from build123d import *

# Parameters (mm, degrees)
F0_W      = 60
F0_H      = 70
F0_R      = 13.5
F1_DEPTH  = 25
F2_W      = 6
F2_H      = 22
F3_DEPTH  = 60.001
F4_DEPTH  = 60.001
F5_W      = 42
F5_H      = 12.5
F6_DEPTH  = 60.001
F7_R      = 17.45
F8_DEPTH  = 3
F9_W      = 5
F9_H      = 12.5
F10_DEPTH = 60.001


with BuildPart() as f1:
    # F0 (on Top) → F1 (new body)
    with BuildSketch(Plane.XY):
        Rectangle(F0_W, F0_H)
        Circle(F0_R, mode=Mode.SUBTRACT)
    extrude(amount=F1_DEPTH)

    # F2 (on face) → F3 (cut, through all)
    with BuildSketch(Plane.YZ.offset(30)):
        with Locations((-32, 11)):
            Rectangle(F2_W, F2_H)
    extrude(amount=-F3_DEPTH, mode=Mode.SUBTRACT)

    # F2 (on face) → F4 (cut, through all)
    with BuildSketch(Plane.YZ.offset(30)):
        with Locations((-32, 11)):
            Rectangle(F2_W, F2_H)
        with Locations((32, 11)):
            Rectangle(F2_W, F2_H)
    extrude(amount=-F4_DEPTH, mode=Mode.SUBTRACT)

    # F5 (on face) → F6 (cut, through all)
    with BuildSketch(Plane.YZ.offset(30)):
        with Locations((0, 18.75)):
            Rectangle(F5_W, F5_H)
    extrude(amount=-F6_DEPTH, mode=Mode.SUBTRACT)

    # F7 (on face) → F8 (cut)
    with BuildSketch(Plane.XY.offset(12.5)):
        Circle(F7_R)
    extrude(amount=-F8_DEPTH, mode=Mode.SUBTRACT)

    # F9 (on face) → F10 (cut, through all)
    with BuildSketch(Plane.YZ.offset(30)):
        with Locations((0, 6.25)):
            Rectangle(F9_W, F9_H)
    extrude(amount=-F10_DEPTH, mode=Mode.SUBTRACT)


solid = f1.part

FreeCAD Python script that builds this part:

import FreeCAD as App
import Part
import Sketcher

V = App.Vector

doc = App.newDocument("Part")
body = doc.addObject("PartDesign::Body", "Body")
body.AllowCompound = True

# Sketch on XY plane
sketch1 = body.newObject("Sketcher::SketchObject", "Sketch")
sketch1.AttachmentSupport = (doc.getObject("XY_Plane"), [""])
sketch1.MapMode = "FlatFace"
sketch1.addGeometry([
    Part.LineSegment(V(-30, 35, 0), V(-30, -35, 0)),  # 0
    Part.LineSegment(V(-30, -35, 0), V(30, -35, 0)),  # 1
    Part.LineSegment(V(30, -35, 0), V(30, 35, 0)),  # 2
    Part.LineSegment(V(30, 35, 0), V(-30, 35, 0)),  # 3
    Part.Circle(V(0, 0, 0), V(0, 0, 1), 13.5),  # 4
], False)
sketch1.addConstraint([
    Sketcher.Constraint("Coincident", 0, 2, 1, 1),
    Sketcher.Constraint("Coincident", 1, 2, 2, 1),
    Sketcher.Constraint("Coincident", 2, 2, 3, 1),
    Sketcher.Constraint("Coincident", 3, 2, 0, 1),
    Sketcher.Constraint("Vertical", 0),
    Sketcher.Constraint("Horizontal", 1),
    Sketcher.Constraint("Vertical", 2),
    Sketcher.Constraint("Horizontal", 3),
    Sketcher.Constraint("Coincident", 4, 3, -1, 1),
    Sketcher.Constraint("Symmetric", 0, 2, 2, 2, -1, 1),
    Sketcher.Constraint("Diameter", 4, 27.0),
    Sketcher.Constraint("DistanceX", 1, 1, 1, 2, 60.0),
    Sketcher.Constraint("DistanceY", 0, 2, 0, 1, 70.0),
])
pad1 = body.newObject("PartDesign::Pad", "Pad")
pad1.Profile = sketch1
pad1.Length = 25

# Sketch on YZ plane
sketch2 = body.newObject("Sketcher::SketchObject", "Sketch001")
sketch2.AttachmentSupport = (doc.getObject("YZ_Plane"), [""])
sketch2.MapMode = "FlatFace"
sketch2.AttachmentOffset = App.Placement(V(0, 0, 30), App.Rotation())
sketch2.addGeometry([
    Part.LineSegment(V(-35, 22, 0), V(-35, 0, 0)),
    Part.LineSegment(V(-35, 0, 0), V(-29, 0, 0)),
    Part.LineSegment(V(-29, 0, 0), V(-29, 22, 0)),
    Part.LineSegment(V(-29, 22, 0), V(-35, 22, 0)),
], False)
sketch2.addConstraint([
    Sketcher.Constraint("Coincident", 0, 2, 1, 1),
    Sketcher.Constraint("Coincident", 1, 2, 2, 1),
    Sketcher.Constraint("Coincident", 2, 2, 3, 1),
    Sketcher.Constraint("Coincident", 3, 2, 0, 1),
    Sketcher.Constraint("Vertical", 0),
    Sketcher.Constraint("Horizontal", 1),
    Sketcher.Constraint("Vertical", 2),
    Sketcher.Constraint("Horizontal", 3),
    Sketcher.Constraint("PointOnObject", 0, 2, -1),
    Sketcher.Constraint("DistanceX", 1, 1, 1, 2, 6.0),
    Sketcher.Constraint("DistanceY", 0, 2, 0, 1, 22.0),
    Sketcher.Constraint("DistanceX", 0, 2, -1, 1, 35.0),
])
pocket1 = body.newObject("PartDesign::Pocket", "Pocket")
pocket1.Profile = sketch2
pocket1.Type = "ThroughAll"

# Sketch on YZ plane
sketch3 = body.newObject("Sketcher::SketchObject", "Sketch002")
sketch3.AttachmentSupport = (doc.getObject("YZ_Plane"), [""])
sketch3.MapMode = "FlatFace"
sketch3.AttachmentOffset = App.Placement(V(0, 0, 30), App.Rotation())
sketch3.addGeometry([
    Part.LineSegment(V(-35, 22, 0), V(-35, 0, 0)),  # 0
    Part.LineSegment(V(-35, 0, 0), V(-29, 0, 0)),  # 1
    Part.LineSegment(V(-29, 0, 0), V(-29, 22, 0)),  # 2
    Part.LineSegment(V(-29, 22, 0), V(-35, 22, 0)),  # 3
    Part.LineSegment(V(29, 22, 0), V(29, 0, 0)),  # 4
    Part.LineSegment(V(29, 0, 0), V(35, 0, 0)),  # 5
    Part.LineSegment(V(35, 0, 0), V(35, 22, 0)),  # 6
    Part.LineSegment(V(35, 22, 0), V(29, 22, 0)),  # 7
], False)
sketch3.addConstraint([
    Sketcher.Constraint("Coincident", 0, 2, 1, 1),
    Sketcher.Constraint("Coincident", 1, 2, 2, 1),
    Sketcher.Constraint("Coincident", 2, 2, 3, 1),
    Sketcher.Constraint("Coincident", 3, 2, 0, 1),
    Sketcher.Constraint("Coincident", 4, 2, 5, 1),
    Sketcher.Constraint("Coincident", 5, 2, 6, 1),
    Sketcher.Constraint("Coincident", 6, 2, 7, 1),
    Sketcher.Constraint("Coincident", 7, 2, 4, 1),
    Sketcher.Constraint("Vertical", 0),
    Sketcher.Constraint("Horizontal", 1),
    Sketcher.Constraint("Vertical", 2),
    Sketcher.Constraint("Horizontal", 3),
    Sketcher.Constraint("Vertical", 4),
    Sketcher.Constraint("Horizontal", 5),
    Sketcher.Constraint("Vertical", 6),
    Sketcher.Constraint("Horizontal", 7),
    Sketcher.Constraint("Symmetric", 1, 2, 4, 2, -1, 1),
    Sketcher.Constraint("Symmetric", 0, 2, 5, 2, -2),
    Sketcher.Constraint("Horizontal", 3, 2, 6, 2),
    Sketcher.Constraint("DistanceX", 1, 1, 1, 2, 6.0),
    Sketcher.Constraint("DistanceY", 0, 2, 0, 1, 22.0),
    Sketcher.Constraint("DistanceX", 0, 2, -1, 1, 35.0),
])
pocket2 = body.newObject("PartDesign::Pocket", "Pocket001")
pocket2.Profile = sketch3
pocket2.Type = "ThroughAll"

# Sketch on YZ plane
sketch4 = body.newObject("Sketcher::SketchObject", "Sketch003")
sketch4.AttachmentSupport = (doc.getObject("YZ_Plane"), [""])
sketch4.MapMode = "FlatFace"
sketch4.AttachmentOffset = App.Placement(V(0, 0, 30), App.Rotation())
sketch4.addGeometry([
    Part.LineSegment(V(-21, 25, 0), V(-21, 12.5, 0)),
    Part.LineSegment(V(-21, 12.5, 0), V(21, 12.5, 0)),
    Part.LineSegment(V(21, 12.5, 0), V(21, 25, 0)),
    Part.LineSegment(V(21, 25, 0), V(-21, 25, 0)),
], False)
sketch4.addConstraint([
    Sketcher.Constraint("Coincident", 0, 2, 1, 1),
    Sketcher.Constraint("Coincident", 1, 2, 2, 1),
    Sketcher.Constraint("Coincident", 2, 2, 3, 1),
    Sketcher.Constraint("Coincident", 3, 2, 0, 1),
    Sketcher.Constraint("Vertical", 0),
    Sketcher.Constraint("Horizontal", 1),
    Sketcher.Constraint("Vertical", 2),
    Sketcher.Constraint("Horizontal", 3),
    Sketcher.Constraint("DistanceX", 1, 1, 1, 2, 42.0),
    Sketcher.Constraint("DistanceY", 0, 2, 0, 1, 12.5),
    Sketcher.Constraint("DistanceX", 0, 2, -1, 1, 21.0),
    Sketcher.Constraint("DistanceY", -1, 1, 2, 2, 25.0),
])
pocket3 = body.newObject("PartDesign::Pocket", "Pocket002")
pocket3.Profile = sketch4
pocket3.Type = "ThroughAll"

# Sketch on XY plane
sketch5 = body.newObject("Sketcher::SketchObject", "Sketch004")
sketch5.AttachmentSupport = (doc.getObject("XY_Plane"), [""])
sketch5.MapMode = "FlatFace"
sketch5.AttachmentOffset = App.Placement(V(0, 0, 12.5), App.Rotation())
sketch5.addGeometry(Part.Circle(V(0, 0, 0), V(0, 0, 1), 17.45), False)
sketch5.addConstraint([
    Sketcher.Constraint("Coincident", 0, 3, -1, 1),
    Sketcher.Constraint("Diameter", 0, 34.9),
])
pocket4 = body.newObject("PartDesign::Pocket", "Pocket003")
pocket4.Profile = sketch5
pocket4.Length = 3

# Sketch on YZ plane
sketch6 = body.newObject("Sketcher::SketchObject", "Sketch005")
sketch6.AttachmentSupport = (doc.getObject("YZ_Plane"), [""])
sketch6.MapMode = "FlatFace"
sketch6.AttachmentOffset = App.Placement(V(0, 0, 30), App.Rotation())
sketch6.addGeometry([
    Part.LineSegment(V(-2.5, 12.5, 0), V(-2.5, 0, 0)),
    Part.LineSegment(V(-2.5, 0, 0), V(2.5, 0, 0)),
    Part.LineSegment(V(2.5, 0, 0), V(2.5, 12.5, 0)),
    Part.LineSegment(V(2.5, 12.5, 0), V(-2.5, 12.5, 0)),
], False)
sketch6.addConstraint([
    Sketcher.Constraint("Coincident", 0, 2, 1, 1),
    Sketcher.Constraint("Coincident", 1, 2, 2, 1),
    Sketcher.Constraint("Coincident", 2, 2, 3, 1),
    Sketcher.Constraint("Coincident", 3, 2, 0, 1),
    Sketcher.Constraint("Vertical", 0),
    Sketcher.Constraint("Horizontal", 1),
    Sketcher.Constraint("Vertical", 2),
    Sketcher.Constraint("Horizontal", 3),
    Sketcher.Constraint("Symmetric", 0, 2, 1, 2, -1, 1),
    Sketcher.Constraint("DistanceX", 1, 1, 1, 2, 5.0),
    Sketcher.Constraint("DistanceY", 0, 2, 0, 1, 12.5),
])
pocket5 = body.newObject("PartDesign::Pocket", "Pocket004")
pocket5.Profile = sketch6
pocket5.Type = "ThroughAll"

doc.recompute()
